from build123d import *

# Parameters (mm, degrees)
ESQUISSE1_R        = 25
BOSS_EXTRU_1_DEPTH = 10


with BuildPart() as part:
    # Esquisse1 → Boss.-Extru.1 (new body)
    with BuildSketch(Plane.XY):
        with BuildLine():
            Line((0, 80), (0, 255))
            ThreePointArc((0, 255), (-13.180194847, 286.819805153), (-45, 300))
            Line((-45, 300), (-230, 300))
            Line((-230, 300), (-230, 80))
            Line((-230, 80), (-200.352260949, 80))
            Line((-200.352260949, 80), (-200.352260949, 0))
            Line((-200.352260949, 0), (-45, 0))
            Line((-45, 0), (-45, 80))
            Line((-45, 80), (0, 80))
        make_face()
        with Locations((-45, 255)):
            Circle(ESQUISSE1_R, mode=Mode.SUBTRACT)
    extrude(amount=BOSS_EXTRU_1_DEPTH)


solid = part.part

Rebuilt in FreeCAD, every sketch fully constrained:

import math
import FreeCAD as App
import Part
import Sketcher
from FreeCAD import Vector
Q = App.Units.Quantity

doc = App.newDocument("Part")
body = doc.addObject("PartDesign::Body", "Body")

# Sketch on XY plane
sketch1 = doc.addObject("Sketcher::SketchObject", "Sketch")
body.addObject(sketch1)
sketch1.AttachmentSupport = (doc.XY_Plane, [""])
sketch1.MapMode = "FlatFace"
sketch1.addGeometry(Part.LineSegment(Vector(0, 80, 0), Vector(0, 255, 0)), False)
sketch1.addGeometry(Part.ArcOfCircle(Part.Circle(Vector(-45, 255, 0), Vector(0, 0, 1), 45), math.radians(0), math.radians(90)), False)
sketch1.addGeometry(Part.LineSegment(Vector(-45, 300, 0), Vector(-230, 300, 0)), False)
sketch1.addGeometry(Part.LineSegment(Vector(-230, 300, 0), Vector(-230, 80, 0)), False)
sketch1.addGeometry(Part.LineSegment(Vector(-230, 80, 0), Vector(-200, 80, 0)), False)
sketch1.addGeometry(Part.LineSegment(Vector(-200, 80, 0), Vector(-200, 0, 0)), False)
sketch1.addGeometry(Part.LineSegment(Vector(-200, 0, 0), Vector(-45, 0, 0)), False)
sketch1.addGeometry(Part.LineSegment(Vector(-45, 0, 0), Vector(-45, 80, 0)), False)
sketch1.addGeometry(Part.LineSegment(Vector(-45, 80, 0), Vector(0, 80, 0)), False)
sketch1.addGeometry(Part.Circle(Vector(-45, 255, 0), Vector(0, 0, 1), 25), False)
sketch1.addConstraint(Sketcher.Constraint("Tangent", 0, 2, 1, 1))
sketch1.addConstraint(Sketcher.Constraint("Tangent", 1, 2, 2, 1))
sketch1.addConstraint(Sketcher.Constraint("Coincident", 2, 2, 3, 1))
sketch1.addConstraint(Sketcher.Constraint("Coincident", 3, 2, 4, 1))
sketch1.addConstraint(Sketcher.Constraint("Coincident", 4, 2, 5, 1))
sketch1.addConstraint(Sketcher.Constraint("Coincident", 5, 2, 6, 1))
sketch1.addConstraint(Sketcher.Constraint("Coincident", 6, 2, 7, 1))
sketch1.addConstraint(Sketcher.Constraint("Coincident", 7, 2, 8, 1))
sketch1.addConstraint(Sketcher.Constraint("Coincident", 8, 2, 0, 1))
sketch1.addConstraint(Sketcher.Constraint("Vertical", 0))
sketch1.addConstraint(Sketcher.Constraint("Horizontal", 2))
sketch1.addConstraint(Sketcher.Constraint("Vertical", 3))
sketch1.addConstraint(Sketcher.Constraint("Horizontal", 4))
sketch1.addConstraint(Sketcher.Constraint("Vertical", 5))
sketch1.addConstraint(Sketcher.Constraint("Horizontal", 6))
sketch1.addConstraint(Sketcher.Constraint("Vertical", 7))
sketch1.addConstraint(Sketcher.Constraint("Horizontal", 8))
sketch1.addConstraint(Sketcher.Constraint("Coincident", 9, 3, 1, 3))
sketch1.addConstraint(Sketcher.Constraint("PointOnObject", 0, 2, -2))
sketch1.addConstraint(Sketcher.Constraint("PointOnObject", 5, 2, -1))
sketch1.addConstraint(Sketcher.Constraint("Horizontal", 4, 2, 7, 2))
sketch1.addConstraint(Sketcher.Constraint("Vertical", 1, 2, 6, 2))
sketch1.addConstraint(Sketcher.Constraint("Diameter", 9, Q("50 mm")))
sketch1.addConstraint(Sketcher.Constraint("Radius", 1, Q("45 mm")))
sketch1.addConstraint(Sketcher.Constraint("DistanceX", 2, 2, 2, 1, Q("185 mm")))
sketch1.addConstraint(Sketcher.Constraint("DistanceY", 0, 1, 0, 2, Q("175 mm")))
sketch1.addConstraint(Sketcher.Constraint("DistanceY", 5, 2, 5, 1, Q("80 mm")))
sketch1.addConstraint(Sketcher.Constraint("DistanceX", 4, 1, 4, 2, Q("29.647739 mm")))
pad1 = doc.addObject("PartDesign::Pad", "Pad")
body.addObject(pad1)
pad1.Profile = sketch1
pad1.Length = 10

doc.recompute()
